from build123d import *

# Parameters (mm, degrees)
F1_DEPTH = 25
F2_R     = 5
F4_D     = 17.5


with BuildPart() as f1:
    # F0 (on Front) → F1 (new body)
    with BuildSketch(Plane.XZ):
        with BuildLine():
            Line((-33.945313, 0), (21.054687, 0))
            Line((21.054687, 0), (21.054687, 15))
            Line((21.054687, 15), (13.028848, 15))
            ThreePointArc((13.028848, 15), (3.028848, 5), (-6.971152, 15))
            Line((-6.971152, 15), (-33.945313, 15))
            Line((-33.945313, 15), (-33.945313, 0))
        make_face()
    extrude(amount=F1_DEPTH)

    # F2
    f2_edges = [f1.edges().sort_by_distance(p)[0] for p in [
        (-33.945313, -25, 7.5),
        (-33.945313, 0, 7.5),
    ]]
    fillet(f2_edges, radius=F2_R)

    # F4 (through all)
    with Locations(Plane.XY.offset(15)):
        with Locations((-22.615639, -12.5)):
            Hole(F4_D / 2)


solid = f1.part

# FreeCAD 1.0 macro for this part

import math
import FreeCAD as App
import Part
import Sketcher


def edges_at(feature, points):
    """Names of the edges that pass closest to the given points."""
    edges = feature.Shape.Edges
    near = lambda p: min(range(len(edges)), key=lambda i: edges[i].distToShape(Part.Vertex(*p))[0])
    return sorted({f"Edge{near(p) + 1}" for p in points})

doc = App.newDocument("Part")
body = doc.addObject("PartDesign::Body", "Body")

sketch1 = body.newObject("Sketcher::SketchObject", "Sketch")
sketch1.AttachmentSupport = (doc.getObject("XZ_Plane"), [""])
sketch1.MapMode = "FlatFace"
sketch1.addGeometry([
    Part.LineSegment(App.Vector(-34, 0, 0), App.Vector(21, 0, 0)),
    Part.LineSegment(App.Vector(21, 0, 0), App.Vector(21, 15, 0)),
    Part.LineSegment(App.Vector(21, 15, 0), App.Vector(13, 15, 0)),
    Part.ArcOfCircle(Part.Circle(App.Vector(3, 15, 0), App.Vector(0, 0, 1), 10), math.radians(180), math.radians(360)),
    Part.LineSegment(App.Vector(-7, 15, 0), App.Vector(-34, 15, 0)),
    Part.LineSegment(App.Vector(-34, 15, 0), App.Vector(-34, 0, 0)),
], False)
sketch1.addConstraint([
    Sketcher.Constraint("Coincident", 0, 2, 1, 1),
    Sketcher.Constraint("Coincident", 1, 2, 2, 1),
    Sketcher.Constraint("Coincident", 2, 2, 3, 2),
    Sketcher.Constraint("Coincident", 3, 1, 4, 1),
    Sketcher.Constraint("Coincident", 4, 2, 5, 1),
    Sketcher.Constraint("Coincident", 5, 2, 0, 1),
    Sketcher.Constraint("Horizontal", 0),
    Sketcher.Constraint("Vertical", 1),
    Sketcher.Constraint("Horizontal", 2),
    Sketcher.Constraint("Horizontal", 4),
    Sketcher.Constraint("Vertical", 5),
    Sketcher.Constraint("PointOnObject", 0, 2, -1),
    Sketcher.Constraint("Horizontal", 3, 3, 1, 2),
    Sketcher.Constraint("Horizontal", 2, 2, 3, 1),
    Sketcher.Constraint("Radius", 3, 10.0),
    Sketcher.Constraint("DistanceX", 0, 1, 0, 2, 55.0),
    Sketcher.Constraint("DistanceY", 1, 1, 1, 2, 15.0),
    Sketcher.Constraint("DistanceX", 2, 2, 2, 1, 8.025839),
    Sketcher.Constraint("DistanceX", -1, 1, 3, 3, 3.028848),
])
pad1 = body.newObject("PartDesign::Pad", "Pad")
pad1.Profile = sketch1
pad1.Length = 25
doc.recompute()

fillet = body.newObject("PartDesign::Fillet", "Fillet")
fillet.Base = (pad1, edges_at(pad1, [(-33.945, -25, 7.5), (-33.945, 0, 7.5)]))
fillet.Radius = 5

sketch2 = body.newObject("Sketcher::SketchObject", "Sketch001")
sketch2.AttachmentSupport = (doc.getObject("XY_Plane"), [""])
sketch2.MapMode = "FlatFace"
sketch2.AttachmentOffset = App.Placement(App.Vector(0, 0, 15), App.Rotation())
sketch2.addGeometry(Part.Circle(App.Vector(-23, -12, 0), App.Vector(0, 0, 1), 9), False)
sketch2.addConstraint([
    Sketcher.Constraint("Diameter", 0, 17.5),
    Sketcher.Constraint("DistanceY", 0, 3, -1, 1, 12.5),
    Sketcher.Constraint("DistanceX", 0, 3, -1, 1, 22.615639),
])
doc.recompute()
hole = body.newObject("PartDesign::Hole", "Hole")
hole.Profile = sketch2
hole.ThreadType = "None"
hole.Diameter = 17.5
hole.DepthType = "ThroughAll"

doc.recompute()
